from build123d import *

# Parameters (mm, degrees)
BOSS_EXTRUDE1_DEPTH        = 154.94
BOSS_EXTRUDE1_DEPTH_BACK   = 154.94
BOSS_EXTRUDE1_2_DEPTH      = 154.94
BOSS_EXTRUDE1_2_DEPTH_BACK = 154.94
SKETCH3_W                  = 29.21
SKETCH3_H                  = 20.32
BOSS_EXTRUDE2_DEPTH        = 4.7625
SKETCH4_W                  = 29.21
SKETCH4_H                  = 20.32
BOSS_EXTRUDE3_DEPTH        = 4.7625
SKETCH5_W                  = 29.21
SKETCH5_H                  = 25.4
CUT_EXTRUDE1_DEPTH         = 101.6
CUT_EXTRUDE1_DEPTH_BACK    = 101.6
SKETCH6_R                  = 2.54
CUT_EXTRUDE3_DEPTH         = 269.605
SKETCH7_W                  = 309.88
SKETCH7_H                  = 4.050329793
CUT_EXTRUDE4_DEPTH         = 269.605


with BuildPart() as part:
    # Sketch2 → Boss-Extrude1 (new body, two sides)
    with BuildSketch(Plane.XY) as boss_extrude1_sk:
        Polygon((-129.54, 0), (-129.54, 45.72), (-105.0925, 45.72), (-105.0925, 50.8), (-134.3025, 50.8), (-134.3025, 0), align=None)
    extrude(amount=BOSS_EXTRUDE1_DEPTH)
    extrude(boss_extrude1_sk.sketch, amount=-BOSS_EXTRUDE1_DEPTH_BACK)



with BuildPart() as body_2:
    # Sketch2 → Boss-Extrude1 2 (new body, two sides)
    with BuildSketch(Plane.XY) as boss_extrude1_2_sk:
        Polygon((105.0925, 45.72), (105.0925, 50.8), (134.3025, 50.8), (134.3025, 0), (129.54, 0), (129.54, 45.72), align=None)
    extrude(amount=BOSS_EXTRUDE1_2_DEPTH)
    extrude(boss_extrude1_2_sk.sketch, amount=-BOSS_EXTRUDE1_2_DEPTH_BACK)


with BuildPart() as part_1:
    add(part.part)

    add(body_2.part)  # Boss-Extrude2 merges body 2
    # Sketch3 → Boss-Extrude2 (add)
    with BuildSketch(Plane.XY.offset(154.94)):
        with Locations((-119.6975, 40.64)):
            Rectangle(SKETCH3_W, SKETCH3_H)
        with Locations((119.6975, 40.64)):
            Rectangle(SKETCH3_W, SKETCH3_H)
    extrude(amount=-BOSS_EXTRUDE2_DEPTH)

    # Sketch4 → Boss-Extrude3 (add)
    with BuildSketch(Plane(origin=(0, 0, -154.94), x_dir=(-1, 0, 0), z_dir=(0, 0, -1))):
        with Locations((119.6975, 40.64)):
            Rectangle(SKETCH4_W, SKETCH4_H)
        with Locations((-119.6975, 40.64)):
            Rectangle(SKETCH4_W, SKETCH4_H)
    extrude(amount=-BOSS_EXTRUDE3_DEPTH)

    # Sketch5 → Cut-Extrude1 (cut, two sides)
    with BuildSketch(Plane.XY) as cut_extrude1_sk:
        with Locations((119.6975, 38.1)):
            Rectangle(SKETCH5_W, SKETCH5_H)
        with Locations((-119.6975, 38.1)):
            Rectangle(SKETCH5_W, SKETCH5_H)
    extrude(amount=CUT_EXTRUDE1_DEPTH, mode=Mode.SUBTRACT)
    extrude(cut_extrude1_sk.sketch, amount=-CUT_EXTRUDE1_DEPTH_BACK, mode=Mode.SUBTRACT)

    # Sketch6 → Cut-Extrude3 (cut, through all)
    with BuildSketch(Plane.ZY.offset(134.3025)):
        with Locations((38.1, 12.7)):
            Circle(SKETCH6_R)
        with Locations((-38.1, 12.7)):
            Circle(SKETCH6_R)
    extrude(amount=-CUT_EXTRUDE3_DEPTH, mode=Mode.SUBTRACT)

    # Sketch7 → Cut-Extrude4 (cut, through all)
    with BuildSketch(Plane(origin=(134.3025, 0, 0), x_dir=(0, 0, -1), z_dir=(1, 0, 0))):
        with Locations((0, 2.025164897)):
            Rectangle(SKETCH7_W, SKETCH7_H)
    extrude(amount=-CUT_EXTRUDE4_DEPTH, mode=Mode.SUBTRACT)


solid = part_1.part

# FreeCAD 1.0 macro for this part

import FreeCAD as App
import Part
import Sketcher
Q = App.Units.Quantity

doc = App.newDocument("Part")
body = doc.addObject("PartDesign::Body", "Body")

# Sketch on XY plane
sketch1 = doc.addObject("Sketcher::SketchObject", "Sketch")
body.addObject(sketch1)
sketch1.AttachmentSupport = (doc.XY_Plane, [""])
sketch1.MapMode = "FlatFace"
sketch1.addGeometry(Part.LineSegment(App.Vector(-129.5, 0, 0), App.Vector(-129.5, 45.7, 0)), False)
sketch1.addGeometry(Part.LineSegment(App.Vector(-129.5, 45.7, 0), App.Vector(-105.1, 45.7, 0)), False)
sketch1.addGeometry(Part.LineSegment(App.Vector(-105.1, 45.7, 0), App.Vector(-105.1, 50.8, 0)), False)
sketch1.addGeometry(Part.LineSegment(App.Vector(-105.1, 50.8, 0), App.Vector(-134.3, 50.8, 0)), False)
sketch1.addGeometry(Part.LineSegment(App.Vector(-134.3, 50.8, 0), App.Vector(-134.3, 0, 0)), False)
sketch1.addGeometry(Part.LineSegment(App.Vector(-134.3, 0, 0), App.Vector(-129.5, 0, 0)), False)
sketch1.addConstraint(Sketcher.Constraint("Coincident", 0, 2, 1, 1))
sketch1.addConstraint(Sketcher.Constraint("Coincident", 1, 2, 2, 1))
sketch1.addConstraint(Sketcher.Constraint("Coincident", 2, 2, 3, 1))
sketch1.addConstraint(Sketcher.Constraint("Coincident", 3, 2, 4, 1))
sketch1.addConstraint(Sketcher.Constraint("Coincident", 4, 2, 5, 1))
sketch1.addConstraint(Sketcher.Constraint("Coincident", 5, 2, 0, 1))
sketch1.addConstraint(Sketcher.Constraint("Vertical", 0))
sketch1.addConstraint(Sketcher.Constraint("Horizontal", 1))
sketch1.addConstraint(Sketcher.Constraint("Vertical", 2))
sketch1.addConstraint(Sketcher.Constraint("Horizontal", 3))
sketch1.addConstraint(Sketcher.Constraint("Vertical", 4))
sketch1.addConstraint(Sketcher.Constraint("Horizontal", 5))
sketch1.addConstraint(Sketcher.Constraint("PointOnObject", 4, 2, -1))
sketch1.addConstraint(Sketcher.Constraint("DistanceY", 4, 2, 4, 1, Q("2 in")))
sketch1.addConstraint(Sketcher.Constraint("DistanceY", 0, 1, 0, 2, Q("1.8 in")))
sketch1.addConstraint(Sketcher.Constraint("DistanceX", 3, 2, 3, 1, Q("1.15 in")))
sketch1.addConstraint(Sketcher.Constraint("DistanceX", 0, 2, -1, 1, Q("5.1 in")))
sketch1.addConstraint(Sketcher.Constraint("DistanceX", 5, 1, 5, 2, Q("0.1875 in")))
pad1 = doc.addObject("PartDesign::Pad", "Pad")
body.addObject(pad1)
pad1.Profile = sketch1
pad1.Type = "TwoLengths"
pad1.Length = Q("6.1 in")
pad1.Length2 = Q("6.1 in")
body2 = doc.addObject("PartDesign::Body", "Body001")

# Sketch on XY plane
sketch2 = doc.addObject("Sketcher::SketchObject", "Sketch001")
body2.addObject(sketch2)
sketch2.AttachmentSupport = (doc.getObject("XY_Plane001"), [""])
sketch2.MapMode = "FlatFace"
sketch2.addGeometry(Part.LineSegment(App.Vector(105.1, 50.8, 0), App.Vector(105.1, 45.7, 0)), False)
sketch2.addGeometry(Part.LineSegment(App.Vector(105.1, 45.7, 0), App.Vector(129.5, 45.7, 0)), False)
sketch2.addGeometry(Part.LineSegment(App.Vector(129.5, 45.7, 0), App.Vector(129.5, 0, 0)), False)
sketch2.addGeometry(Part.LineSegment(App.Vector(129.5, 0, 0), App.Vector(134.3, 0, 0)), False)
sketch2.addGeometry(Part.LineSegment(App.Vector(134.3, 0, 0), App.Vector(134.3, 50.8, 0)), False)
sketch2.addGeometry(Part.LineSegment(App.Vector(134.3, 50.8, 0), App.Vector(105.1, 50.8, 0)), False)
sketch2.addConstraint(Sketcher.Constraint("Coincident", 0, 2, 1, 1))
sketch2.addConstraint(Sketcher.Constraint("Coincident", 1, 2, 2, 1))
sketch2.addConstraint(Sketcher.Constraint("Coincident", 2, 2, 3, 1))
sketch2.addConstraint(Sketcher.Constraint("Coincident", 3, 2, 4, 1))
sketch2.addConstraint(Sketcher.Constraint("Coincident", 4, 2, 5, 1))
sketch2.addConstraint(Sketcher.Constraint("Coincident", 5, 2, 0, 1))
sketch2.addConstraint(Sketcher.Constraint("Vertical", 0))
sketch2.addConstraint(Sketcher.Constraint("Horizontal", 1))
sketch2.addConstraint(Sketcher.Constraint("Vertical", 2))
sketch2.addConstraint(Sketcher.Constraint("Horizontal", 3))
sketch2.addConstraint(Sketcher.Constraint("Vertical", 4))
sketch2.addConstraint(Sketcher.Constraint("Horizontal", 5))
sketch2.addConstraint(Sketcher.Constraint("PointOnObject", 2, 2, -1))
sketch2.addConstraint(Sketcher.Constraint("DistanceY", 4, 1, 4, 2, Q("2 in")))
sketch2.addConstraint(Sketcher.Constraint("DistanceY", 0, 2, 0, 1, Q("0.2 in")))
sketch2.addConstraint(Sketcher.Constraint("DistanceX", 5, 2, 5, 1, Q("1.15 in")))
sketch2.addConstraint(Sketcher.Constraint("DistanceX", -1, 1, 1, 2, Q("5.1 in")))
sketch2.addConstraint(Sketcher.Constraint("DistanceX", 3, 1, 3, 2, Q("0.1875 in")))
pad2 = doc.addObject("PartDesign::Pad", "Pad001")
body2.addObject(pad2)
pad2.Profile = sketch2
pad2.Type = "TwoLengths"
pad2.Length = Q("6.1 in")
pad2.Length2 = Q("6.1 in")
body.AllowCompound = True
doc.recompute()

boolean = doc.addObject("PartDesign::Boolean", "Boolean")
body.addObject(boolean)
boolean.Type = "Fuse"
boolean.addObjects([body2])

# Sketch on XY plane
sketch3 = doc.addObject("Sketcher::SketchObject", "Sketch002")
body.addObject(sketch3)
sketch3.AttachmentSupport = (doc.XY_Plane, [""])
sketch3.MapMode = "FlatFace"
sketch3.AttachmentOffset = App.Placement(App.Vector(0, 0, 6.1 * 25.4), App.Rotation())
sketch3.addGeometry(Part.LineSegment(App.Vector(-134, 51, 0), App.Vector(-134, 30, 0)), False)
sketch3.addGeometry(Part.LineSegment(App.Vector(-134, 30, 0), App.Vector(-105, 30, 0)), False)
sketch3.addGeometry(Part.LineSegment(App.Vector(-105, 30, 0), App.Vector(-105, 51, 0)), False)
sketch3.addGeometry(Part.LineSegment(App.Vector(-105, 51, 0), App.Vector(-134, 51, 0)), False)
sketch3.addGeometry(Part.LineSegment(App.Vector(105, 51, 0), App.Vector(105, 30, 0)), False)
sketch3.addGeometry(Part.LineSegment(App.Vector(105, 30, 0), App.Vector(134, 30, 0)), False)
sketch3.addGeometry(Part.LineSegment(App.Vector(134, 30, 0), App.Vector(134, 51, 0)), False)
sketch3.addGeometry(Part.LineSegment(App.Vector(134, 51, 0), App.Vector(105, 51, 0)), False)
sketch3.addConstraint(Sketcher.Constraint("Coincident", 0, 2, 1, 1))
sketch3.addConstraint(Sketcher.Constraint("Coincident", 1, 2, 2, 1))
sketch3.addConstraint(Sketcher.Constraint("Coincident", 2, 2, 3, 1))
sketch3.addConstraint(Sketcher.Constraint("Coincident", 3, 2, 0, 1))
sketch3.addConstraint(Sketcher.Constraint("Coincident", 4, 2, 5, 1))
sketch3.addConstraint(Sketcher.Constraint("Coincident", 5, 2, 6, 1))
sketch3.addConstraint(Sketcher.Constraint("Coincident", 6, 2, 7, 1))
sketch3.addConstraint(Sketcher.Constraint("Coincident", 7, 2, 4, 1))
sketch3.addConstraint(Sketcher.Constraint("Vertical", 0))
sketch3.addConstraint(Sketcher.Constraint("Horizontal", 1))
sketch3.addConstraint(Sketcher.Constraint("Vertical", 2))
sketch3.addConstraint(Sketcher.Constraint("Horizontal", 3))
sketch3.addConstraint(Sketcher.Constraint("Vertical", 4))
sketch3.addConstraint(Sketcher.Constraint("Horizontal", 5))
sketch3.addConstraint(Sketcher.Constraint("Vertical", 6))
sketch3.addConstraint(Sketcher.Constraint("Horizontal", 7))
sketch3.addConstraint(Sketcher.Constraint("Symmetric", 1, 2, 4, 2, -2))
sketch3.addConstraint(Sketcher.Constraint("Symmetric", 3, 2, 6, 2, -2))
sketch3.addConstraint(Sketcher.Constraint("DistanceY", 0, 2, 0, 1, Q("0.8 in")))
sketch3.addConstraint(Sketcher.Constraint("DistanceY", -1, 1, 2, 2, Q("2 in")))
sketch3.addConstraint(Sketcher.Constraint("DistanceX", 1, 1, 1, 2, Q("1.15 in")))
sketch3.addConstraint(Sketcher.Constraint("DistanceX", 1, 2, 4, 2, Q("8.275 in")))
pad3 = doc.addObject("PartDesign::Pad", "Pad002")
body.addObject(pad3)
pad3.Profile = sketch3
pad3.Length = Q("0.1875 in")
pad3.Reversed = True

# Sketch on XY plane
sketch4 = doc.addObject("Sketcher::SketchObject", "Sketch003")
body.addObject(sketch4)
sketch4.AttachmentSupport = (doc.XY_Plane, [""])
sketch4.MapMode = "FlatFace"
sketch4.AttachmentOffset = App.Placement(App.Vector(0, 0, -6.1 * 25.4), App.Rotation())
sketch4.addGeometry(Part.LineSegment(App.Vector(-105, 51, 0), App.Vector(-105, 30, 0)), False)
sketch4.addGeometry(Part.LineSegment(App.Vector(-105, 30, 0), App.Vector(-134, 30, 0)), False)
sketch4.addGeometry(Part.LineSegment(App.Vector(-134, 30, 0), App.Vector(-134, 51, 0)), False)
sketch4.addGeometry(Part.LineSegment(App.Vector(-134, 51, 0), App.Vector(-105, 51, 0)), False)
sketch4.addGeometry(Part.LineSegment(App.Vector(134, 51, 0), App.Vector(134, 30, 0)), False)
sketch4.addGeometry(Part.LineSegment(App.Vector(134, 30, 0), App.Vector(105, 30, 0)), False)
sketch4.addGeometry(Part.LineSegment(App.Vector(105, 30, 0), App.Vector(105, 51, 0)), False)
sketch4.addGeometry(Part.LineSegment(App.Vector(105, 51, 0), App.Vector(134, 51, 0)), False)
sketch4.addConstraint(Sketcher.Constraint("Coincident", 0, 2, 1, 1))
sketch4.addConstraint(Sketcher.Constraint("Coincident", 1, 2, 2, 1))
sketch4.addConstraint(Sketcher.Constraint("Coincident", 2, 2, 3, 1))
sketch4.addConstraint(Sketcher.Constraint("Coincident", 3, 2, 0, 1))
sketch4.addConstraint(Sketcher.Constraint("Coincident", 4, 2, 5, 1))
sketch4.addConstraint(Sketcher.Constraint("Coincident", 5, 2, 6, 1))
sketch4.addConstraint(Sketcher.Constraint("Coincident", 6, 2, 7, 1))
sketch4.addConstraint(Sketcher.Constraint("Coincident", 7, 2, 4, 1))
sketch4.addConstraint(Sketcher.Constraint("Vertical", 0))
sketch4.addConstraint(Sketcher.Constraint("Horizontal", 1))
sketch4.addConstraint(Sketcher.Constraint("Vertical", 2))
sketch4.addConstraint(Sketcher.Constraint("Horizontal", 3))
sketch4.addConstraint(Sketcher.Constraint("Vertical", 4))
sketch4.addConstraint(Sketcher.Constraint("Horizontal", 5))
sketch4.addConstraint(Sketcher.Constraint("Vertical", 6))
sketch4.addConstraint(Sketcher.Constraint("Horizontal", 7))
sketch4.addConstraint(Sketcher.Constraint("Symmetric", 1, 2, 4, 2, -2))
sketch4.addConstraint(Sketcher.Constraint("Symmetric", 3, 2, 6, 2, -2))
sketch4.addConstraint(Sketcher.Constraint("DistanceY", 0, 2, 0, 1, Q("0.8 in")))
sketch4.addConstraint(Sketcher.Constraint("DistanceY", -1, 1, 2, 2, Q("2 in")))
sketch4.addConstraint(Sketcher.Constraint("DistanceX", 1, 2, 1, 1, Q("1.15 in")))
sketch4.addConstraint(Sketcher.Constraint("DistanceX", 0, 2, 4, 2, Q("9.425 in")))
pad4 = doc.addObject("PartDesign::Pad", "Pad003")
body.addObject(pad4)
pad4.Profile = sketch4
pad4.Length = Q("0.1875 in")

# Sketch on XY plane
sketch5 = doc.addObject("Sketcher::SketchObject", "Sketch004")
body.addObject(sketch5)
sketch5.AttachmentSupport = (doc.XY_Plane, [""])
sketch5.MapMode = "FlatFace"
sketch5.addGeometry(Part.LineSegment(App.Vector(105, 51, 0), App.Vector(105, 25, 0)), False)
sketch5.addGeometry(Part.LineSegment(App.Vector(105, 25, 0), App.Vector(134, 25, 0)), False)
sketch5.addGeometry(Part.LineSegment(App.Vector(134, 25, 0), App.Vector(134, 51, 0)), False)
sketch5.addGeometry(Part.LineSegment(App.Vector(134, 51, 0), App.Vector(105, 51, 0)), False)
sketch5.addGeometry(Part.LineSegment(App.Vector(-134, 51, 0), App.Vector(-134, 25, 0)), False)
sketch5.addGeometry(Part.LineSegment(App.Vector(-134, 25, 0), App.Vector(-105, 25, 0)), False)
sketch5.addGeometry(Part.LineSegment(App.Vector(-105, 25, 0), App.Vector(-105, 51, 0)), False)
sketch5.addGeometry(Part.LineSegment(App.Vector(-105, 51, 0), App.Vector(-134, 51, 0)), False)
sketch5.addConstraint(Sketcher.Constraint("Coincident", 0, 2, 1, 1))
sketch5.addConstraint(Sketcher.Constraint("Coincident", 1, 2, 2, 1))
sketch5.addConstraint(Sketcher.Constraint("Coincident", 2, 2, 3, 1))
sketch5.addConstraint(Sketcher.Constraint("Coincident", 3, 2, 0, 1))
sketch5.addConstraint(Sketcher.Constraint("Coincident", 4, 2, 5, 1))
sketch5.addConstraint(Sketcher.Constraint("Coincident", 5, 2, 6, 1))
sketch5.addConstraint(Sketcher.Constraint("Coincident", 6, 2, 7, 1))
sketch5.addConstraint(Sketcher.Constraint("Coincident", 7, 2, 4, 1))
sketch5.addConstraint(Sketcher.Constraint("Vertical", 0))
sketch5.addConstraint(Sketcher.Constraint("Horizontal", 1))
sketch5.addConstraint(Sketcher.Constraint("Vertical", 2))
sketch5.addConstraint(Sketcher.Constraint("Horizontal", 3))
sketch5.addConstraint(Sketcher.Constraint("Vertical", 4))
sketch5.addConstraint(Sketcher.Constraint("Horizontal", 5))
sketch5.addConstraint(Sketcher.Constraint("Vertical", 6))
sketch5.addConstraint(Sketcher.Constraint("Horizontal", 7))
sketch5.addConstraint(Sketcher.Constraint("Symmetric", 1, 2, 4, 2, -2))
sketch5.addConstraint(Sketcher.Constraint("Symmetric", 3, 2, 6, 2, -2))
sketch5.addConstraint(Sketcher.Constraint("DistanceY", 0, 2, 0, 1, Q("1 in")))
sketch5.addConstraint(Sketcher.Constraint("DistanceY", -1, 1, 0, 2, Q("1 in")))
sketch5.addConstraint(Sketcher.Constraint("DistanceX", 1, 1, 1, 2, Q("1.15 in")))
sketch5.addConstraint(Sketcher.Constraint("DistanceX", 4, 2, 0, 2, Q("9.425 in")))
pocket1 = doc.addObject("PartDesign::Pocket", "Pocket")
body.addObject(pocket1)
pocket1.Profile = sketch5
pocket1.Type = "TwoLengths"
pocket1.Length = Q("4 in")
pocket1.Length2 = Q("4 in")
pocket1.Reversed = True

# Sketch on YZ plane
sketch6 = doc.addObject("Sketcher::SketchObject", "Sketch005")
body.addObject(sketch6)
sketch6.AttachmentSupport = (doc.YZ_Plane, [""])
sketch6.MapMode = "FlatFace"
sketch6.AttachmentOffset = App.Placement(App.Vector(0, 0, -5.2875 * 25.4), App.Rotation())
sketch6.addGeometry(Part.Circle(App.Vector(12.7, 38.1, 0), App.Vector(0, 0, 1), 2.5), False)
sketch6.addGeometry(Part.Circle(App.Vector(12.7, -38.1, 0), App.Vector(0, 0, 1), 2.5), False)
sketch6.addConstraint(Sketcher.Constraint("Equal", 0, 1))
sketch6.addConstraint(Sketcher.Constraint("Symmetric", 0, 3, 1, 3, -1))
sketch6.addConstraint(Sketcher.Constraint("Diameter", 0, Q("0.2 in")))
sketch6.addConstraint(Sketcher.Constraint("DistanceY", 1, 3, 0, 3, Q("3 in")))
sketch6.addConstraint(Sketcher.Constraint("DistanceX", -1, 1, 0, 3, Q("0.5 in")))
pocket2 = doc.addObject("PartDesign::Pocket", "Pocket001")
body.addObject(pocket2)
pocket2.Profile = sketch6
pocket2.Type = "ThroughAll"
pocket2.Reversed = True

# Sketch on YZ plane
sketch7 = doc.addObject("Sketcher::SketchObject", "Sketch006")
body.addObject(sketch7)
sketch7.AttachmentSupport = (doc.YZ_Plane, [""])
sketch7.MapMode = "FlatFace"
sketch7.AttachmentOffset = App.Placement(App.Vector(0, 0, 5.2875 * 25.4), App.Rotation())
sketch7.addGeometry(Part.LineSegment(App.Vector(4.1, 154.9, 0), App.Vector(0, 154.9, 0)), False)
sketch7.addGeometry(Part.LineSegment(App.Vector(0, 154.9, 0), App.Vector(0, -154.9, 0)), False)
sketch7.addGeometry(Part.LineSegment(App.Vector(0, -154.9, 0), App.Vector(4.1, -154.9, 0)), False)
sketch7.addGeometry(Part.LineSegment(App.Vector(4.1, -154.9, 0), App.Vector(4.1, 154.9, 0)), False)
sketch7.addConstraint(Sketcher.Constraint("Coincident", 0, 2, 1, 1))
sketch7.addConstraint(Sketcher.Constraint("Coincident", 1, 2, 2, 1))
sketch7.addConstraint(Sketcher.Constraint("Coincident", 2, 2, 3, 1))
sketch7.addConstraint(Sketcher.Constraint("Coincident", 3, 2, 0, 1))
sketch7.addConstraint(Sketcher.Constraint("Horizontal", 0))
sketch7.addConstraint(Sketcher.Constraint("Vertical", 1))
sketch7.addConstraint(Sketcher.Constraint("Horizontal", 2))
sketch7.addConstraint(Sketcher.Constraint("Vertical", 3))
sketch7.addConstraint(Sketcher.Constraint("Symmetric", 0, 2, 1, 2, -1, 1))
sketch7.addConstraint(Sketcher.Constraint("DistanceY", 1, 2, 1, 1, Q("12.2 in")))
sketch7.addConstraint(Sketcher.Constraint("DistanceX", 0, 2, 0, 1, Q("4.05033 mm")))
pocket3 = doc.addObject("PartDesign::Pocket", "Pocket002")
body.addObject(pocket3)
pocket3.Profile = sketch7
pocket3.Type = "ThroughAll"

doc.recompute()
